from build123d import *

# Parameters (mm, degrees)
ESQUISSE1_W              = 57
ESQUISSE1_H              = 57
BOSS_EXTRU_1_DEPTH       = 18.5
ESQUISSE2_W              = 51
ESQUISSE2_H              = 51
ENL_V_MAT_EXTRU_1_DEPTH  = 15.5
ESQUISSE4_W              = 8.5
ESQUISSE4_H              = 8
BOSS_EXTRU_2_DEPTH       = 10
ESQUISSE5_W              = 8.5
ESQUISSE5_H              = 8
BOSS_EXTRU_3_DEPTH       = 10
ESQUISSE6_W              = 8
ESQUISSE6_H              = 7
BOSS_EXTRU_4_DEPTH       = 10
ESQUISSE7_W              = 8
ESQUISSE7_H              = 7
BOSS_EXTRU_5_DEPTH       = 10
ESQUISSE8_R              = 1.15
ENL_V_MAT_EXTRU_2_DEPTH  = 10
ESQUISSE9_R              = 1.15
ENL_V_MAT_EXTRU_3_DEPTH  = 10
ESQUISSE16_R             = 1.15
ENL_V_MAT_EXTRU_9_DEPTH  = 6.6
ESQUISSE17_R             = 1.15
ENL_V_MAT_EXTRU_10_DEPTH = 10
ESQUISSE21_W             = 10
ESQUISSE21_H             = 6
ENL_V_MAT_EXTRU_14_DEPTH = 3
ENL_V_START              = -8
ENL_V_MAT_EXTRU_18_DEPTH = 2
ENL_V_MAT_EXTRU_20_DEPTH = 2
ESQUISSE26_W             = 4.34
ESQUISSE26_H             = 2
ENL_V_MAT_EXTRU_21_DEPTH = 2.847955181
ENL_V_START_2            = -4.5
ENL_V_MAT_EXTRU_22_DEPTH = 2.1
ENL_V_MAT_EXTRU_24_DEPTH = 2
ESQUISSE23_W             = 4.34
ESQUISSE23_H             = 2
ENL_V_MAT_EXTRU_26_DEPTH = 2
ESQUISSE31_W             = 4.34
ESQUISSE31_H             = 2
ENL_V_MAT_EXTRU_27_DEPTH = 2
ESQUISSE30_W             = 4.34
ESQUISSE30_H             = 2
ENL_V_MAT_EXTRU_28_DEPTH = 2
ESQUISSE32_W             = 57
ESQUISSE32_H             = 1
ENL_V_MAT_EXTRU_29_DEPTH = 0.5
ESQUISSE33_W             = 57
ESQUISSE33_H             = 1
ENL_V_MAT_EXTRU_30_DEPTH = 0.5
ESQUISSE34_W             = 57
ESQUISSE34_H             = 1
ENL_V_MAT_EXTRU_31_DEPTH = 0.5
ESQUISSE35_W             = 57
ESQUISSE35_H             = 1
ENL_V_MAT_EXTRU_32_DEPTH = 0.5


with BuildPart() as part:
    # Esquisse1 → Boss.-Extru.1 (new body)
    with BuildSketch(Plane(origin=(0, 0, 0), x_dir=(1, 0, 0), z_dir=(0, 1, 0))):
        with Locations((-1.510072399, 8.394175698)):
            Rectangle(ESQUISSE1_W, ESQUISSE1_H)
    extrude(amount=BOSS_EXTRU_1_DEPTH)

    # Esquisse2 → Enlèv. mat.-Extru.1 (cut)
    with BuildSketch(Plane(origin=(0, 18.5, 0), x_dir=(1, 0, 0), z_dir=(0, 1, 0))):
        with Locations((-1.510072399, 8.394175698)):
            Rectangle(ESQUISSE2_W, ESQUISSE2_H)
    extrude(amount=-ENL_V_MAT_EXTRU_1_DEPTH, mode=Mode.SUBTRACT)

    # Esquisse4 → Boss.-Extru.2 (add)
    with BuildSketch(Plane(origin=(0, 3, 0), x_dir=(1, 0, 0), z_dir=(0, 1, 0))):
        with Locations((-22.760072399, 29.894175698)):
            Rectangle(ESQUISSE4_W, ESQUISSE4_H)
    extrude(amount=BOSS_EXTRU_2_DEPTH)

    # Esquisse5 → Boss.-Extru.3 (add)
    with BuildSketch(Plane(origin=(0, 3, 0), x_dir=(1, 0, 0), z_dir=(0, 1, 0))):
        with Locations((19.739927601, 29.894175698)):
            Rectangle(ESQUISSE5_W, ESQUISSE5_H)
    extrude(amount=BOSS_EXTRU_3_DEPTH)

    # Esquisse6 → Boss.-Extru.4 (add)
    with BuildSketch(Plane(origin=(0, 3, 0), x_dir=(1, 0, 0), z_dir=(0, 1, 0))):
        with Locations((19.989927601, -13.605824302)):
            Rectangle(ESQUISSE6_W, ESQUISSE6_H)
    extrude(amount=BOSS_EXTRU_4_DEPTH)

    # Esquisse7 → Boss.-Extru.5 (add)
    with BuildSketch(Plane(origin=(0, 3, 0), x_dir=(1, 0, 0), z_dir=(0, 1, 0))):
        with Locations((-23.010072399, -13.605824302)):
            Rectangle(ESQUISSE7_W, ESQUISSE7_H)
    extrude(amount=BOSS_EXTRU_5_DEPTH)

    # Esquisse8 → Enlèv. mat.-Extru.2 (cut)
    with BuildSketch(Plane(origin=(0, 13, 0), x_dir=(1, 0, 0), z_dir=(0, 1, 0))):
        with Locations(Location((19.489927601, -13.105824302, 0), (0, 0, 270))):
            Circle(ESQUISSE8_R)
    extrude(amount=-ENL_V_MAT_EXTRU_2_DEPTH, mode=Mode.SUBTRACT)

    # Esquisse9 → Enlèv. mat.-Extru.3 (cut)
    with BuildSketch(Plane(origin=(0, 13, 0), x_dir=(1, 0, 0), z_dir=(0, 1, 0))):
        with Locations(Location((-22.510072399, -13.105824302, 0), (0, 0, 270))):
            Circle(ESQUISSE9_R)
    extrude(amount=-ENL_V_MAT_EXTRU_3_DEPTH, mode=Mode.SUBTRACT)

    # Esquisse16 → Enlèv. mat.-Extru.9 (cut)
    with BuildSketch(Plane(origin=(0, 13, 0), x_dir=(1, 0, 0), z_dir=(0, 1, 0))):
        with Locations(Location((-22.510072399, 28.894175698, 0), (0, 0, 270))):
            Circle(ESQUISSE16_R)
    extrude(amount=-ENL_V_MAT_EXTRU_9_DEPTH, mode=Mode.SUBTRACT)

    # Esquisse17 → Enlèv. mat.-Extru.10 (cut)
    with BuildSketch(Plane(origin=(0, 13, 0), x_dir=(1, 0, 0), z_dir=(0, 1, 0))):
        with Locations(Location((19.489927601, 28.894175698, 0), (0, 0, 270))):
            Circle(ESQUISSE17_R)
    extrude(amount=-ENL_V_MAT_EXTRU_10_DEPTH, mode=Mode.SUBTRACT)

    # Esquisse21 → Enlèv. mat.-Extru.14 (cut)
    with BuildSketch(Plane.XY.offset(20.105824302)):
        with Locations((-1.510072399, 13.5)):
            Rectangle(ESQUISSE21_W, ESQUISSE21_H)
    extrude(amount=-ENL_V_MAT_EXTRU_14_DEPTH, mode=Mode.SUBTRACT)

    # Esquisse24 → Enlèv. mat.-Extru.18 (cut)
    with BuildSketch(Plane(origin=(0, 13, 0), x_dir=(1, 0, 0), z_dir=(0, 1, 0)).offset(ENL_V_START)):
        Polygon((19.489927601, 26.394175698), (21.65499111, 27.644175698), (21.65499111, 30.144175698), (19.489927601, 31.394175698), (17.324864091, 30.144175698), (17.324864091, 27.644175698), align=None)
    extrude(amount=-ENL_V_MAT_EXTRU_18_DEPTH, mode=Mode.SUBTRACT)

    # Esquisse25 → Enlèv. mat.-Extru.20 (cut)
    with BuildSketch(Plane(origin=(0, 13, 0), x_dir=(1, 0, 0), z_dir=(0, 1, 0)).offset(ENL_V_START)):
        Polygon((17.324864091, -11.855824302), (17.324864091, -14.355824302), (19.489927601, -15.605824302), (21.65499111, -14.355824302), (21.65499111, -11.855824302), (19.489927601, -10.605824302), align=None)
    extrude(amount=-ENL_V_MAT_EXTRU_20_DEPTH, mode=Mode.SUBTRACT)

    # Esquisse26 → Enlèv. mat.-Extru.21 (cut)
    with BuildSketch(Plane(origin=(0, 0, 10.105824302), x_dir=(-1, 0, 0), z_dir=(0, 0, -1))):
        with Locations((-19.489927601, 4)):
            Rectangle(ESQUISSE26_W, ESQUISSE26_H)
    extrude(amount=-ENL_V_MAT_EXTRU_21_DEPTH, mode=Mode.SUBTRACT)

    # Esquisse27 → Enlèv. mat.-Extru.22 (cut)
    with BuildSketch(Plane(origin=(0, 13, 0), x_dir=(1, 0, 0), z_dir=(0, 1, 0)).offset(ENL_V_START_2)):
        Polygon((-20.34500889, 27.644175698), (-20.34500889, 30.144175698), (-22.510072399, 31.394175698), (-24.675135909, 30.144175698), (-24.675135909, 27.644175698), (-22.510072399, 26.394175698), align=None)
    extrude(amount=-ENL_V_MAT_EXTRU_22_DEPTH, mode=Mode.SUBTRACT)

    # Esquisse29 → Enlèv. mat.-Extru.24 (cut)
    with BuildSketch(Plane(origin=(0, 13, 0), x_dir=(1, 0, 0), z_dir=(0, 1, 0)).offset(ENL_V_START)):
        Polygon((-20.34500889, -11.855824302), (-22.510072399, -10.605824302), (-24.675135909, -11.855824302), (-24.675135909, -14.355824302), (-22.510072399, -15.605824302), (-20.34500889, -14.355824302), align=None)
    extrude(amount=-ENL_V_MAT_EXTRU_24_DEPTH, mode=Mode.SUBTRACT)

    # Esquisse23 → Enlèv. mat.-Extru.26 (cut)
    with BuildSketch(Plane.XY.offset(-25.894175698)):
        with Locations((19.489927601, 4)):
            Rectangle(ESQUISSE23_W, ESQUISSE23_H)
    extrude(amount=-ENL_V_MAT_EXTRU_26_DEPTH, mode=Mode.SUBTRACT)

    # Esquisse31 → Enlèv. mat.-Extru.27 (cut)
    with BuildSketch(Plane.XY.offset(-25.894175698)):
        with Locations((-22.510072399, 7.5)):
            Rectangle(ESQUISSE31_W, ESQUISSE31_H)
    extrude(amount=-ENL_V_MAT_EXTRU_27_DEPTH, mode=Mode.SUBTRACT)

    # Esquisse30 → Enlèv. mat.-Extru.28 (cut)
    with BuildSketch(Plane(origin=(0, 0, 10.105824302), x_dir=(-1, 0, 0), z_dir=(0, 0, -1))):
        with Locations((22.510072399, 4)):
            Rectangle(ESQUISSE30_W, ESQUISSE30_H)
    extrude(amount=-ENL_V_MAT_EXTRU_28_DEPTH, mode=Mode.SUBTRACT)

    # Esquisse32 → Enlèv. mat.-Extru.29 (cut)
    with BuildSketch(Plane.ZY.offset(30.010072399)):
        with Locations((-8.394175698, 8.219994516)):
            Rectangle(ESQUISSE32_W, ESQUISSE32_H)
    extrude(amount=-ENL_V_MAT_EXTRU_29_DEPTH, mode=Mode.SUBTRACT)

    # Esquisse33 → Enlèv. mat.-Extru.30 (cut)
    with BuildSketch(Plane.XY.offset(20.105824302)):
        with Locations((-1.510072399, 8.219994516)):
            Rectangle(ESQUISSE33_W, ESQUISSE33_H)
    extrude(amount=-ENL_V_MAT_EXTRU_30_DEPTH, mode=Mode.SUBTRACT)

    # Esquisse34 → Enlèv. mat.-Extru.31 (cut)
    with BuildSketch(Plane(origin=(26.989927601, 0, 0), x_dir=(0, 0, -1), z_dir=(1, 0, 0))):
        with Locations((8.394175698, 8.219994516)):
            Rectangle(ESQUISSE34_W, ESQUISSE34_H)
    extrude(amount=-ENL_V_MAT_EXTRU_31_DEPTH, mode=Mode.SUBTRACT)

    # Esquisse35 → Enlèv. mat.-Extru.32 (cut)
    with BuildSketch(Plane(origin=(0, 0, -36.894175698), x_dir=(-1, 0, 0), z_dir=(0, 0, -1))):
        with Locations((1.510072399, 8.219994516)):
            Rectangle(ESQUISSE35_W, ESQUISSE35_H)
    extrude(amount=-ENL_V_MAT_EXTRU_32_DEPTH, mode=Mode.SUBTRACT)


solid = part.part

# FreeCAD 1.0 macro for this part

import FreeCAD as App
import Part
import Sketcher
from FreeCAD import Vector
Q = App.Units.Quantity


def add_polygon(sketch, points):
    """Adds a closed chain of lines whose ends are joined by coincident constraints."""
    first, n = sketch.GeometryCount, len(points)
    for a, b in zip(points, points[1:] + points[:1]):
        sketch.addGeometry(Part.LineSegment(App.Vector(*a, 0), App.Vector(*b, 0)), False)
    for i in range(n):
        sketch.addConstraint(Sketcher.Constraint("Coincident", first + i, 2, first + (i + 1) % n, 1))

doc = App.newDocument("Part")
body = doc.addObject("PartDesign::Body", "Body")

# Sketch on XZ plane
sketch1 = body.newObject("Sketcher::SketchObject", "Sketch")
sketch1.AttachmentSupport = (doc.getObject("XZ_Plane"), [""])
sketch1.MapMode = "FlatFace"
add_polygon(sketch1, [(-30, -37), (-30, 20), (27, 20), (27, -37)])  # lines 0-3
sketch1.addConstraint([
    Sketcher.Constraint("Vertical", 0),
    Sketcher.Constraint("Horizontal", 1),
    Sketcher.Constraint("Vertical", 2),
    Sketcher.Constraint("Horizontal", 3),
    Sketcher.Constraint("Equal", 3, 0),
    Sketcher.Constraint("DistanceX", 1, 1, 1, 2, Q("57 mm")),
    Sketcher.Constraint("DistanceX", 0, 2, -1, 1, Q("30.010072 mm")),
    Sketcher.Constraint("DistanceY", -1, 1, 0, 2, Q("20.105824 mm")),
])
pad1 = body.newObject("PartDesign::Pad", "Pad")
pad1.Profile = sketch1
pad1.Length = 18.5
pad1.Reversed = True

# Sketch on XZ plane
sketch2 = body.newObject("Sketcher::SketchObject", "Sketch001")
sketch2.AttachmentSupport = (doc.getObject("XZ_Plane"), [""])
sketch2.MapMode = "FlatFace"
sketch2.AttachmentOffset = App.Placement(Vector(0, 0, -18.5), App.Rotation())
add_polygon(sketch2, [(-27, -34), (-27, 17), (24, 17), (24, -34)])  # lines 0-3
sketch2.addConstraint([
    Sketcher.Constraint("Vertical", 0),
    Sketcher.Constraint("Horizontal", 1),
    Sketcher.Constraint("Vertical", 2),
    Sketcher.Constraint("Horizontal", 3),
    Sketcher.Constraint("Equal", 3, 0),
    Sketcher.Constraint("DistanceX", 1, 1, 1, 2, Q("51 mm")),
    Sketcher.Constraint("DistanceX", 0, 2, -1, 1, Q("27.010072 mm")),
    Sketcher.Constraint("DistanceY", -1, 1, 0, 2, Q("17.105824 mm")),
])
pocket1 = body.newObject("PartDesign::Pocket", "Pocket")
pocket1.Profile = sketch2
pocket1.Length = 15.5
pocket1.Reversed = True

# Sketch on XZ plane
sketch3 = body.newObject("Sketcher::SketchObject", "Sketch002")
sketch3.AttachmentSupport = (doc.getObject("XZ_Plane"), [""])
sketch3.MapMode = "FlatFace"
sketch3.AttachmentOffset = App.Placement(Vector(0, 0, -3), App.Rotation())
add_polygon(sketch3, [(-27, -34), (-27, -26), (-19, -26), (-19, -34)])  # lines 0-3
sketch3.addConstraint([
    Sketcher.Constraint("Vertical", 0),
    Sketcher.Constraint("Horizontal", 1),
    Sketcher.Constraint("Vertical", 2),
    Sketcher.Constraint("Horizontal", 3),
    Sketcher.Constraint("DistanceY", 0, 1, 0, 2, Q("8 mm")),
    Sketcher.Constraint("DistanceX", 1, 1, 1, 2, Q("8.5 mm")),
    Sketcher.Constraint("DistanceX", 0, 2, -1, 1, Q("27.010072 mm")),
    Sketcher.Constraint("DistanceY", 0, 2, -1, 1, Q("25.894176 mm")),
])
pad2 = body.newObject("PartDesign::Pad", "Pad001")
pad2.Profile = sketch3
pad2.Length = 10
pad2.Reversed = True

# Sketch on XZ plane
sketch4 = body.newObject("Sketcher::SketchObject", "Sketch003")
sketch4.AttachmentSupport = (doc.getObject("XZ_Plane"), [""])
sketch4.MapMode = "FlatFace"
sketch4.AttachmentOffset = App.Placement(Vector(0, 0, -3), App.Rotation())
add_polygon(sketch4, [(15, -34), (15, -26), (24, -26), (24, -34)])  # lines 0-3
sketch4.addConstraint([
    Sketcher.Constraint("Vertical", 0),
    Sketcher.Constraint("Horizontal", 1),
    Sketcher.Constraint("Vertical", 2),
    Sketcher.Constraint("Horizontal", 3),
    Sketcher.Constraint("DistanceY", 0, 1, 0, 2, Q("8 mm")),
    Sketcher.Constraint("DistanceX", 1, 1, 1, 2, Q("8.5 mm")),
    Sketcher.Constraint("DistanceX", -1, 1, 0, 2, Q("15.489928 mm")),
    Sketcher.Constraint("DistanceY", 0, 2, -1, 1, Q("25.894176 mm")),
])
pad3 = body.newObject("PartDesign::Pad", "Pad002")
pad3.Profile = sketch4
pad3.Length = 10
pad3.Reversed = True

# Sketch on XZ plane
sketch5 = body.newObject("Sketcher::SketchObject", "Sketch004")
sketch5.AttachmentSupport = (doc.getObject("XZ_Plane"), [""])
sketch5.MapMode = "FlatFace"
sketch5.AttachmentOffset = App.Placement(Vector(0, 0, -3), App.Rotation())
add_polygon(sketch5, [(16, 10), (16, 17), (24, 17), (24, 10)])  # lines 0-3
sketch5.addConstraint([
    Sketcher.Constraint("Vertical", 0),
    Sketcher.Constraint("Horizontal", 1),
    Sketcher.Constraint("Vertical", 2),
    Sketcher.Constraint("Horizontal", 3),
    Sketcher.Constraint("DistanceX", 1, 1, 1, 2, Q("8 mm")),
    Sketcher.Constraint("DistanceY", 0, 1, 0, 2, Q("7 mm")),
    Sketcher.Constraint("DistanceX", -1, 1, 0, 2, Q("15.989928 mm")),
    Sketcher.Constraint("DistanceY", -1, 1, 0, 2, Q("17.105824 mm")),
])
pad4 = body.newObject("PartDesign::Pad", "Pad003")
pad4.Profile = sketch5
pad4.Length = 10
pad4.Reversed = True

# Sketch on XZ plane
sketch6 = body.newObject("Sketcher::SketchObject", "Sketch005")
sketch6.AttachmentSupport = (doc.getObject("XZ_Plane"), [""])
sketch6.MapMode = "FlatFace"
sketch6.AttachmentOffset = App.Placement(Vector(0, 0, -3), App.Rotation())
add_polygon(sketch6, [(-27, 10), (-27, 17), (-19, 17), (-19, 10)])  # lines 0-3
sketch6.addConstraint([
    Sketcher.Constraint("Vertical", 0),
    Sketcher.Constraint("Horizontal", 1),
    Sketcher.Constraint("Vertical", 2),
    Sketcher.Constraint("Horizontal", 3),
    Sketcher.Constraint("DistanceX", 1, 1, 1, 2, Q("8 mm")),
    Sketcher.Constraint("DistanceY", 0, 1, 0, 2, Q("7 mm")),
    Sketcher.Constraint("DistanceX", 0, 2, -1, 1, Q("27.010072 mm")),
    Sketcher.Constraint("DistanceY", -1, 1, 0, 2, Q("17.105824 mm")),
])
pad5 = body.newObject("PartDesign::Pad", "Pad004")
pad5.Profile = sketch6
pad5.Length = 10
pad5.Reversed = True

# Sketch on XZ plane
sketch7 = body.newObject("Sketcher::SketchObject", "Sketch006")
sketch7.AttachmentSupport = (doc.getObject("XZ_Plane"), [""])
sketch7.MapMode = "FlatFace"
sketch7.AttachmentOffset = App.Placement(Vector(0, 0, -13), App.Rotation())
sketch7.addGeometry(Part.Circle(Vector(19.5, 13.1, 0), Vector(0, 0, 1), 1.1), False)
sketch7.addConstraint([
    Sketcher.Constraint("Diameter", 0, Q("2.3 mm")),
    Sketcher.Constraint("DistanceX", -1, 1, 0, 3, Q("19.489928 mm")),
    Sketcher.Constraint("DistanceY", -1, 1, 0, 3, Q("13.105824 mm")),
])
pocket2 = body.newObject("PartDesign::Pocket", "Pocket001")
pocket2.Profile = sketch7
pocket2.Length = 10
pocket2.Reversed = True

# Sketch on XZ plane
sketch8 = body.newObject("Sketcher::SketchObject", "Sketch007")
sketch8.AttachmentSupport = (doc.getObject("XZ_Plane"), [""])
sketch8.MapMode = "FlatFace"
sketch8.AttachmentOffset = App.Placement(Vector(0, 0, -13), App.Rotation())
sketch8.addGeometry(Part.Circle(Vector(-22.5, 13.1, 0), Vector(0, 0, 1), 1.1), False)
sketch8.addConstraint([
    Sketcher.Constraint("Diameter", 0, Q("2.3 mm")),
    Sketcher.Constraint("DistanceX", 0, 3, -1, 1, Q("22.510072 mm")),
    Sketcher.Constraint("DistanceY", -1, 1, 0, 3, Q("13.105824 mm")),
])
pocket3 = body.newObject("PartDesign::Pocket", "Pocket002")
pocket3.Profile = sketch8
pocket3.Length = 10
pocket3.Reversed = True

# Sketch on XZ plane
sketch9 = body.newObject("Sketcher::SketchObject", "Sketch008")
sketch9.AttachmentSupport = (doc.getObject("XZ_Plane"), [""])
sketch9.MapMode = "FlatFace"
sketch9.AttachmentOffset = App.Placement(Vector(0, 0, -13), App.Rotation())
sketch9.addGeometry(Part.Circle(Vector(-22.5, -28.9, 0), Vector(0, 0, 1), 1.1), False)
sketch9.addConstraint([
    Sketcher.Constraint("Diameter", 0, Q("2.3 mm")),
    Sketcher.Constraint("DistanceX", 0, 3, -1, 1, Q("22.510072 mm")),
    Sketcher.Constraint("DistanceY", 0, 3, -1, 1, Q("28.894176 mm")),
])
pocket4 = body.newObject("PartDesign::Pocket", "Pocket003")
pocket4.Profile = sketch9
pocket4.Length = 6.6
pocket4.Reversed = True

# Sketch on XZ plane
sketch10 = body.newObject("Sketcher::SketchObject", "Sketch009")
sketch10.AttachmentSupport = (doc.getObject("XZ_Plane"), [""])
sketch10.MapMode = "FlatFace"
sketch10.AttachmentOffset = App.Placement(Vector(0, 0, -13), App.Rotation())
sketch10.addGeometry(Part.Circle(Vector(19.5, -28.9, 0), Vector(0, 0, 1), 1.1), False)
sketch10.addConstraint([
    Sketcher.Constraint("Diameter", 0, Q("2.3 mm")),
    Sketcher.Constraint("DistanceX", -1, 1, 0, 3, Q("19.489928 mm")),
    Sketcher.Constraint("DistanceY", 0, 3, -1, 1, Q("28.894176 mm")),
])
pocket5 = body.newObject("PartDesign::Pocket", "Pocket004")
pocket5.Profile = sketch10
pocket5.Length = 10
pocket5.Reversed = True

# Sketch on XY plane
sketch11 = body.newObject("Sketcher::SketchObject", "Sketch010")
sketch11.AttachmentSupport = (doc.getObject("XY_Plane"), [""])
sketch11.MapMode = "FlatFace"
sketch11.AttachmentOffset = App.Placement(Vector(0, 0, 20.105824), App.Rotation())
add_polygon(sketch11, [(-7, 16), (-7, 10), (3, 10), (3, 16)])  # lines 0-3
sketch11.addConstraint([
    Sketcher.Constraint("Vertical", 0),
    Sketcher.Constraint("Horizontal", 1),
    Sketcher.Constraint("Vertical", 2),
    Sketcher.Constraint("Horizontal", 3),
    Sketcher.Constraint("DistanceX", 1, 1, 1, 2, Q("10 mm")),
    Sketcher.Constraint("DistanceY", 0, 2, 0, 1, Q("6 mm")),
    Sketcher.Constraint("DistanceY", -1, 1, 0, 2, Q("10.5 mm")),
    Sketcher.Constraint("DistanceX", 0, 2, -1, 1, Q("6.510072 mm")),
])
pocket6 = body.newObject("PartDesign::Pocket", "Pocket005")
pocket6.Profile = sketch11
pocket6.Length = 3

# Sketch on XZ plane
sketch12 = body.newObject("Sketcher::SketchObject", "Sketch011")
sketch12.AttachmentSupport = (doc.getObject("XZ_Plane"), [""])
sketch12.MapMode = "FlatFace"
sketch12.AttachmentOffset = App.Placement(Vector(0, 0, -5), App.Rotation())
add_polygon(sketch12, [(19.5, -26.4), (21.7, -27.6), (21.7, -30.1), (19.5, -31.4), (17.3, -30.1), (17.3, -27.6)])  # lines 0-5
sketch12.addConstraint([
    Sketcher.Constraint("Vertical", 1),
    Sketcher.Constraint("Vertical", 4),
    Sketcher.Constraint("Parallel", 0, 3),
    Sketcher.Constraint("Parallel", 2, 5),
    Sketcher.Constraint("Horizontal", 1, 2, 3, 2),
    Sketcher.Constraint("Horizontal", 0, 2, 4, 2),
    Sketcher.Constraint("Vertical", 2, 2, 5, 2),
    Sketcher.Constraint("Angle", 0, Q("-30 deg")),
    Sketcher.Constraint("DistanceY", 1, 2, 1, 1, Q("2.5 mm")),
    Sketcher.Constraint("DistanceY", 2, 2, 5, 2, Q("5 mm")),
    Sketcher.Constraint("DistanceX", -1, 1, 0, 2, Q("21.654991 mm")),
    Sketcher.Constraint("DistanceY", 0, 2, -1, 1, Q("27.644176 mm")),
])
pocket7 = body.newObject("PartDesign::Pocket", "Pocket006")
pocket7.Profile = sketch12
pocket7.Length = 2
pocket7.Reversed = True

# Sketch on XZ plane
sketch13 = body.newObject("Sketcher::SketchObject", "Sketch012")
sketch13.AttachmentSupport = (doc.getObject("XZ_Plane"), [""])
sketch13.MapMode = "FlatFace"
sketch13.AttachmentOffset = App.Placement(Vector(0, 0, -5), App.Rotation())
add_polygon(sketch13, [(17.3, 11.9), (17.3, 14.4), (19.5, 15.6), (21.7, 14.4), (21.7, 11.9), (19.5, 10.6)])  # lines 0-5
sketch13.addConstraint([
    Sketcher.Constraint("Vertical", 0),
    Sketcher.Constraint("Vertical", 3),
    Sketcher.Constraint("Parallel", 1, 4),
    Sketcher.Constraint("Parallel", 2, 5),
    Sketcher.Constraint("Horizontal", 0, 2, 2, 2),
    Sketcher.Constraint("Horizontal", 3, 2, 5, 2),
    Sketcher.Constraint("Vertical", 1, 2, 4, 2),
    Sketcher.Constraint("Angle", 1, Q("30 deg")),
    Sketcher.Constraint("DistanceY", 0, 1, 0, 2, Q("2.5 mm")),
    Sketcher.Constraint("DistanceY", 4, 2, 1, 2, Q("5 mm")),
    Sketcher.Constraint("DistanceX", -1, 1, 2, 2, Q("21.654991 mm")),
    Sketcher.Constraint("DistanceY", -1, 1, 0, 2, Q("14.355824 mm")),
])
pocket8 = body.newObject("PartDesign::Pocket", "Pocket007")
pocket8.Profile = sketch13
pocket8.Length = 2
pocket8.Reversed = True

# Sketch on XY plane
sketch14 = body.newObject("Sketcher::SketchObject", "Sketch013")
sketch14.AttachmentSupport = (doc.getObject("XY_Plane"), [""])
sketch14.MapMode = "FlatFace"
sketch14.AttachmentOffset = App.Placement(Vector(0, 0, 10.105824), App.Rotation())
add_polygon(sketch14, [(21.7, 5), (21.7, 3), (17.3, 3), (17.3, 5)])  # lines 0-3
sketch14.addConstraint([
    Sketcher.Constraint("Vertical", 0),
    Sketcher.Constraint("Horizontal", 1),
    Sketcher.Constraint("Vertical", 2),
    Sketcher.Constraint("Horizontal", 3),
    Sketcher.Constraint("DistanceY", 0, 2, 0, 1, Q("2 mm")),
    Sketcher.Constraint("DistanceY", -1, 1, 0, 2, Q("3 mm")),
    Sketcher.Constraint("DistanceX", 1, 2, 1, 1, Q("4.34 mm")),
    Sketcher.Constraint("DistanceX", -1, 1, 0, 2, Q("21.659928 mm")),
])
pocket9 = body.newObject("PartDesign::Pocket", "Pocket008")
pocket9.Profile = sketch14
pocket9.Length = 2.847955
pocket9.Reversed = True

# Sketch on XZ plane
sketch15 = body.newObject("Sketcher::SketchObject", "Sketch014")
sketch15.AttachmentSupport = (doc.getObject("XZ_Plane"), [""])
sketch15.MapMode = "FlatFace"
sketch15.AttachmentOffset = App.Placement(Vector(0, 0, -8.5), App.Rotation())
add_polygon(sketch15, [(-20.3, -27.6), (-20.3, -30.1), (-22.5, -31.4), (-24.7, -30.1), (-24.7, -27.6), (-22.5, -26.4)])  # lines 0-5
sketch15.addConstraint([
    Sketcher.Constraint("Vertical", 0),
    Sketcher.Constraint("Vertical", 3),
    Sketcher.Constraint("Parallel", 1, 4),
    Sketcher.Constraint("Parallel", 2, 5),
    Sketcher.Constraint("Horizontal", 0, 2, 2, 2),
    Sketcher.Constraint("Horizontal", 3, 2, 5, 2),
    Sketcher.Constraint("Vertical", 1, 2, 4, 2),
    Sketcher.Constraint("Angle", 1, Q("-150 deg")),
    Sketcher.Constraint("DistanceY", 0, 2, 0, 1, Q("2.5 mm")),
    Sketcher.Constraint("DistanceY", 1, 2, 4, 2, Q("5 mm")),
    Sketcher.Constraint("DistanceX", 0, 2, -1, 1, Q("20.345009 mm")),
    Sketcher.Constraint("DistanceY", 0, 2, -1, 1, Q("30.144176 mm")),
])
pocket10 = body.newObject("PartDesign::Pocket", "Pocket009")
pocket10.Profile = sketch15
pocket10.Length = 2.1
pocket10.Reversed = True

# Sketch on XZ plane
sketch16 = body.newObject("Sketcher::SketchObject", "Sketch015")
sketch16.AttachmentSupport = (doc.getObject("XZ_Plane"), [""])
sketch16.MapMode = "FlatFace"
sketch16.AttachmentOffset = App.Placement(Vector(0, 0, -5), App.Rotation())
add_polygon(sketch16, [(-20.3, 11.9), (-22.5, 10.6), (-24.7, 11.9), (-24.7, 14.4), (-22.5, 15.6), (-20.3, 14.4)])  # lines 0-5
sketch16.addConstraint([
    Sketcher.Constraint("Vertical", 2),
    Sketcher.Constraint("Vertical", 5),
    Sketcher.Constraint("Parallel", 0, 3),
    Sketcher.Constraint("Parallel", 1, 4),
    Sketcher.Constraint("Horizontal", 2, 2, 4, 2),
    Sketcher.Constraint("Horizontal", 1, 2, 5, 2),
    Sketcher.Constraint("Vertical", 0, 2, 3, 2),
    Sketcher.Constraint("Angle", 0, Q("-150 deg")),
    Sketcher.Constraint("DistanceY", 2, 1, 2, 2, Q("2.5 mm")),
    Sketcher.Constraint("DistanceY", 0, 2, 3, 2, Q("5 mm")),
    Sketcher.Constraint("DistanceX", 4, 2, -1, 1, Q("20.345009 mm")),
    Sketcher.Constraint("DistanceY", -1, 1, 0, 2, Q("10.605824 mm")),
])
pocket11 = body.newObject("PartDesign::Pocket", "Pocket010")
pocket11.Profile = sketch16
pocket11.Length = 2
pocket11.Reversed = True

# Sketch on XY plane
sketch17 = body.newObject("Sketcher::SketchObject", "Sketch016")
sketch17.AttachmentSupport = (doc.getObject("XY_Plane"), [""])
sketch17.MapMode = "FlatFace"
sketch17.AttachmentOffset = App.Placement(Vector(0, 0, -25.894176), App.Rotation())
add_polygon(sketch17, [(17.3, 5), (17.3, 3), (21.7, 3), (21.7, 5)])  # lines 0-3
sketch17.addConstraint([
    Sketcher.Constraint("Vertical", 0),
    Sketcher.Constraint("Horizontal", 1),
    Sketcher.Constraint("Vertical", 2),
    Sketcher.Constraint("Horizontal", 3),
    Sketcher.Constraint("DistanceY", 0, 2, 0, 1, Q("2 mm")),
    Sketcher.Constraint("DistanceY", -1, 1, 0, 2, Q("3 mm")),
    Sketcher.Constraint("DistanceX", 1, 1, 1, 2, Q("4.34 mm")),
    Sketcher.Constraint("DistanceX", -1, 1, 0, 2, Q("17.319928 mm")),
])
pocket12 = body.newObject("PartDesign::Pocket", "Pocket011")
pocket12.Profile = sketch17
pocket12.Length = 2

# Sketch on XY plane
sketch18 = body.newObject("Sketcher::SketchObject", "Sketch017")
sketch18.AttachmentSupport = (doc.getObject("XY_Plane"), [""])
sketch18.MapMode = "FlatFace"
sketch18.AttachmentOffset = App.Placement(Vector(0, 0, -25.894176), App.Rotation())
add_polygon(sketch18, [(-24.7, 8.5), (-24.7, 6.5), (-20.3, 6.5), (-20.3, 8.5)])  # lines 0-3
sketch18.addConstraint([
    Sketcher.Constraint("Vertical", 0),
    Sketcher.Constraint("Horizontal", 1),
    Sketcher.Constraint("Vertical", 2),
    Sketcher.Constraint("Horizontal", 3),
    Sketcher.Constraint("DistanceY", 0, 2, 0, 1, Q("2 mm")),
    Sketcher.Constraint("DistanceX", 1, 1, 1, 2, Q("4.34 mm")),
    Sketcher.Constraint("DistanceY", -1, 1, 0, 2, Q("6.5 mm")),
    Sketcher.Constraint("DistanceX", 0, 2, -1, 1, Q("24.680072 mm")),
])
pocket13 = body.newObject("PartDesign::Pocket", "Pocket012")
pocket13.Profile = sketch18
pocket13.Length = 2

# Sketch on XY plane
sketch19 = body.newObject("Sketcher::SketchObject", "Sketch018")
sketch19.AttachmentSupport = (doc.getObject("XY_Plane"), [""])
sketch19.MapMode = "FlatFace"
sketch19.AttachmentOffset = App.Placement(Vector(0, 0, 10.105824), App.Rotation())
add_polygon(sketch19, [(-20.3, 5), (-20.3, 3), (-24.7, 3), (-24.7, 5)])  # lines 0-3
sketch19.addConstraint([
    Sketcher.Constraint("Vertical", 0),
    Sketcher.Constraint("Horizontal", 1),
    Sketcher.Constraint("Vertical", 2),
    Sketcher.Constraint("Horizontal", 3),
    Sketcher.Constraint("DistanceY", 0, 2, 0, 1, Q("2 mm")),
    Sketcher.Constraint("DistanceY", -1, 1, 0, 2, Q("3 mm")),
    Sketcher.Constraint("DistanceX", 1, 2, 1, 1, Q("4.34 mm")),
    Sketcher.Constraint("DistanceX", 0, 2, -1, 1, Q("20.340072 mm")),
])
pocket14 = body.newObject("PartDesign::Pocket", "Pocket013")
pocket14.Profile = sketch19
pocket14.Length = 2
pocket14.Reversed = True

# Sketch on YZ plane
sketch20 = body.newObject("Sketcher::SketchObject", "Sketch019")
sketch20.AttachmentSupport = (doc.getObject("YZ_Plane"), [""])
sketch20.MapMode = "FlatFace"
sketch20.AttachmentOffset = App.Placement(Vector(0, 0, -30.010072), App.Rotation())
add_polygon(sketch20, [(8.7, -36.9), (7.7, -36.9), (7.7, 20.1), (8.7, 20.1)])  # lines 0-3
sketch20.addConstraint([
    Sketcher.Constraint("Horizontal", 0),
    Sketcher.Constraint("Vertical", 1),
    Sketcher.Constraint("Horizontal", 2),
    Sketcher.Constraint("Vertical", 3),
    Sketcher.Constraint("DistanceX", 0, 2, 0, 1, Q("1 mm")),
    Sketcher.Constraint("DistanceY", 1, 1, 1, 2, Q("57 mm")),
    Sketcher.Constraint("DistanceX", -1, 1, 0, 2, Q("7.719995 mm")),
    Sketcher.Constraint("DistanceY", 0, 2, -1, 1, Q("36.894176 mm")),
])
pocket15 = body.newObject("PartDesign::Pocket", "Pocket014")
pocket15.Profile = sketch20
pocket15.Length = 0.5
pocket15.Reversed = True

# Sketch on XY plane
sketch21 = body.newObject("Sketcher::SketchObject", "Sketch020")
sketch21.AttachmentSupport = (doc.getObject("XY_Plane"), [""])
sketch21.MapMode = "FlatFace"
sketch21.AttachmentOffset = App.Placement(Vector(0, 0, 20.105824), App.Rotation())
add_polygon(sketch21, [(-30, 8.7), (-30, 7.7), (27, 7.7), (27, 8.7)])  # lines 0-3
sketch21.addConstraint([
    Sketcher.Constraint("Vertical", 0),
    Sketcher.Constraint("Horizontal", 1),
    Sketcher.Constraint("Vertical", 2),
    Sketcher.Constraint("Horizontal", 3),
    Sketcher.Constraint("DistanceX", 1, 1, 1, 2, Q("57 mm")),
    Sketcher.Constraint("DistanceY", 0, 2, 0, 1, Q("1 mm")),
    Sketcher.Constraint("DistanceX", 0, 2, -1, 1, Q("30.010072 mm")),
    Sketcher.Constraint("DistanceY", -1, 1, 0, 2, Q("7.719995 mm")),
])
pocket16 = body.newObject("PartDesign::Pocket", "Pocket015")
pocket16.Profile = sketch21
pocket16.Length = 0.5

# Sketch on YZ plane
sketch22 = body.newObject("Sketcher::SketchObject", "Sketch021")
sketch22.AttachmentSupport = (doc.getObject("YZ_Plane"), [""])
sketch22.MapMode = "FlatFace"
sketch22.AttachmentOffset = App.Placement(Vector(0, 0, 26.989928), App.Rotation())
add_polygon(sketch22, [(8.7, 20.1), (7.7, 20.1), (7.7, -36.9), (8.7, -36.9)])  # lines 0-3
sketch22.addConstraint([
    Sketcher.Constraint("Horizontal", 0),
    Sketcher.Constraint("Vertical", 1),
    Sketcher.Constraint("Horizontal", 2),
    Sketcher.Constraint("Vertical", 3),
    Sketcher.Constraint("DistanceX", 0, 2, 0, 1, Q("1 mm")),
    Sketcher.Constraint("DistanceY", 1, 2, 1, 1, Q("57 mm")),
    Sketcher.Constraint("DistanceX", -1, 1, 0, 2, Q("7.719995 mm")),
    Sketcher.Constraint("DistanceY", -1, 1, 0, 2, Q("20.105824 mm")),
])
pocket17 = body.newObject("PartDesign::Pocket", "Pocket016")
pocket17.Profile = sketch22
pocket17.Length = 0.5

# Sketch on XY plane
sketch23 = body.newObject("Sketcher::SketchObject", "Sketch022")
sketch23.AttachmentSupport = (doc.getObject("XY_Plane"), [""])
sketch23.MapMode = "FlatFace"
sketch23.AttachmentOffset = App.Placement(Vector(0, 0, -36.894176), App.Rotation())
add_polygon(sketch23, [(27, 8.7), (27, 7.7), (-30, 7.7), (-30, 8.7)])  # lines 0-3
sketch23.addConstraint([
    Sketcher.Constraint("Vertical", 0),
    Sketcher.Constraint("Horizontal", 1),
    Sketcher.Constraint("Vertical", 2),
    Sketcher.Constraint("Horizontal", 3),
    Sketcher.Constraint("DistanceX", 1, 2, 1, 1, Q("57 mm")),
    Sketcher.Constraint("DistanceY", 0, 2, 0, 1, Q("1 mm")),
    Sketcher.Constraint("DistanceX", -1, 1, 0, 2, Q("26.989928 mm")),
    Sketcher.Constraint("DistanceY", -1, 1, 0, 2, Q("7.719995 mm")),
])
pocket18 = body.newObject("PartDesign::Pocket", "Pocket017")
pocket18.Profile = sketch23
pocket18.Length = 0.5
pocket18.Reversed = True

doc.recompute()
